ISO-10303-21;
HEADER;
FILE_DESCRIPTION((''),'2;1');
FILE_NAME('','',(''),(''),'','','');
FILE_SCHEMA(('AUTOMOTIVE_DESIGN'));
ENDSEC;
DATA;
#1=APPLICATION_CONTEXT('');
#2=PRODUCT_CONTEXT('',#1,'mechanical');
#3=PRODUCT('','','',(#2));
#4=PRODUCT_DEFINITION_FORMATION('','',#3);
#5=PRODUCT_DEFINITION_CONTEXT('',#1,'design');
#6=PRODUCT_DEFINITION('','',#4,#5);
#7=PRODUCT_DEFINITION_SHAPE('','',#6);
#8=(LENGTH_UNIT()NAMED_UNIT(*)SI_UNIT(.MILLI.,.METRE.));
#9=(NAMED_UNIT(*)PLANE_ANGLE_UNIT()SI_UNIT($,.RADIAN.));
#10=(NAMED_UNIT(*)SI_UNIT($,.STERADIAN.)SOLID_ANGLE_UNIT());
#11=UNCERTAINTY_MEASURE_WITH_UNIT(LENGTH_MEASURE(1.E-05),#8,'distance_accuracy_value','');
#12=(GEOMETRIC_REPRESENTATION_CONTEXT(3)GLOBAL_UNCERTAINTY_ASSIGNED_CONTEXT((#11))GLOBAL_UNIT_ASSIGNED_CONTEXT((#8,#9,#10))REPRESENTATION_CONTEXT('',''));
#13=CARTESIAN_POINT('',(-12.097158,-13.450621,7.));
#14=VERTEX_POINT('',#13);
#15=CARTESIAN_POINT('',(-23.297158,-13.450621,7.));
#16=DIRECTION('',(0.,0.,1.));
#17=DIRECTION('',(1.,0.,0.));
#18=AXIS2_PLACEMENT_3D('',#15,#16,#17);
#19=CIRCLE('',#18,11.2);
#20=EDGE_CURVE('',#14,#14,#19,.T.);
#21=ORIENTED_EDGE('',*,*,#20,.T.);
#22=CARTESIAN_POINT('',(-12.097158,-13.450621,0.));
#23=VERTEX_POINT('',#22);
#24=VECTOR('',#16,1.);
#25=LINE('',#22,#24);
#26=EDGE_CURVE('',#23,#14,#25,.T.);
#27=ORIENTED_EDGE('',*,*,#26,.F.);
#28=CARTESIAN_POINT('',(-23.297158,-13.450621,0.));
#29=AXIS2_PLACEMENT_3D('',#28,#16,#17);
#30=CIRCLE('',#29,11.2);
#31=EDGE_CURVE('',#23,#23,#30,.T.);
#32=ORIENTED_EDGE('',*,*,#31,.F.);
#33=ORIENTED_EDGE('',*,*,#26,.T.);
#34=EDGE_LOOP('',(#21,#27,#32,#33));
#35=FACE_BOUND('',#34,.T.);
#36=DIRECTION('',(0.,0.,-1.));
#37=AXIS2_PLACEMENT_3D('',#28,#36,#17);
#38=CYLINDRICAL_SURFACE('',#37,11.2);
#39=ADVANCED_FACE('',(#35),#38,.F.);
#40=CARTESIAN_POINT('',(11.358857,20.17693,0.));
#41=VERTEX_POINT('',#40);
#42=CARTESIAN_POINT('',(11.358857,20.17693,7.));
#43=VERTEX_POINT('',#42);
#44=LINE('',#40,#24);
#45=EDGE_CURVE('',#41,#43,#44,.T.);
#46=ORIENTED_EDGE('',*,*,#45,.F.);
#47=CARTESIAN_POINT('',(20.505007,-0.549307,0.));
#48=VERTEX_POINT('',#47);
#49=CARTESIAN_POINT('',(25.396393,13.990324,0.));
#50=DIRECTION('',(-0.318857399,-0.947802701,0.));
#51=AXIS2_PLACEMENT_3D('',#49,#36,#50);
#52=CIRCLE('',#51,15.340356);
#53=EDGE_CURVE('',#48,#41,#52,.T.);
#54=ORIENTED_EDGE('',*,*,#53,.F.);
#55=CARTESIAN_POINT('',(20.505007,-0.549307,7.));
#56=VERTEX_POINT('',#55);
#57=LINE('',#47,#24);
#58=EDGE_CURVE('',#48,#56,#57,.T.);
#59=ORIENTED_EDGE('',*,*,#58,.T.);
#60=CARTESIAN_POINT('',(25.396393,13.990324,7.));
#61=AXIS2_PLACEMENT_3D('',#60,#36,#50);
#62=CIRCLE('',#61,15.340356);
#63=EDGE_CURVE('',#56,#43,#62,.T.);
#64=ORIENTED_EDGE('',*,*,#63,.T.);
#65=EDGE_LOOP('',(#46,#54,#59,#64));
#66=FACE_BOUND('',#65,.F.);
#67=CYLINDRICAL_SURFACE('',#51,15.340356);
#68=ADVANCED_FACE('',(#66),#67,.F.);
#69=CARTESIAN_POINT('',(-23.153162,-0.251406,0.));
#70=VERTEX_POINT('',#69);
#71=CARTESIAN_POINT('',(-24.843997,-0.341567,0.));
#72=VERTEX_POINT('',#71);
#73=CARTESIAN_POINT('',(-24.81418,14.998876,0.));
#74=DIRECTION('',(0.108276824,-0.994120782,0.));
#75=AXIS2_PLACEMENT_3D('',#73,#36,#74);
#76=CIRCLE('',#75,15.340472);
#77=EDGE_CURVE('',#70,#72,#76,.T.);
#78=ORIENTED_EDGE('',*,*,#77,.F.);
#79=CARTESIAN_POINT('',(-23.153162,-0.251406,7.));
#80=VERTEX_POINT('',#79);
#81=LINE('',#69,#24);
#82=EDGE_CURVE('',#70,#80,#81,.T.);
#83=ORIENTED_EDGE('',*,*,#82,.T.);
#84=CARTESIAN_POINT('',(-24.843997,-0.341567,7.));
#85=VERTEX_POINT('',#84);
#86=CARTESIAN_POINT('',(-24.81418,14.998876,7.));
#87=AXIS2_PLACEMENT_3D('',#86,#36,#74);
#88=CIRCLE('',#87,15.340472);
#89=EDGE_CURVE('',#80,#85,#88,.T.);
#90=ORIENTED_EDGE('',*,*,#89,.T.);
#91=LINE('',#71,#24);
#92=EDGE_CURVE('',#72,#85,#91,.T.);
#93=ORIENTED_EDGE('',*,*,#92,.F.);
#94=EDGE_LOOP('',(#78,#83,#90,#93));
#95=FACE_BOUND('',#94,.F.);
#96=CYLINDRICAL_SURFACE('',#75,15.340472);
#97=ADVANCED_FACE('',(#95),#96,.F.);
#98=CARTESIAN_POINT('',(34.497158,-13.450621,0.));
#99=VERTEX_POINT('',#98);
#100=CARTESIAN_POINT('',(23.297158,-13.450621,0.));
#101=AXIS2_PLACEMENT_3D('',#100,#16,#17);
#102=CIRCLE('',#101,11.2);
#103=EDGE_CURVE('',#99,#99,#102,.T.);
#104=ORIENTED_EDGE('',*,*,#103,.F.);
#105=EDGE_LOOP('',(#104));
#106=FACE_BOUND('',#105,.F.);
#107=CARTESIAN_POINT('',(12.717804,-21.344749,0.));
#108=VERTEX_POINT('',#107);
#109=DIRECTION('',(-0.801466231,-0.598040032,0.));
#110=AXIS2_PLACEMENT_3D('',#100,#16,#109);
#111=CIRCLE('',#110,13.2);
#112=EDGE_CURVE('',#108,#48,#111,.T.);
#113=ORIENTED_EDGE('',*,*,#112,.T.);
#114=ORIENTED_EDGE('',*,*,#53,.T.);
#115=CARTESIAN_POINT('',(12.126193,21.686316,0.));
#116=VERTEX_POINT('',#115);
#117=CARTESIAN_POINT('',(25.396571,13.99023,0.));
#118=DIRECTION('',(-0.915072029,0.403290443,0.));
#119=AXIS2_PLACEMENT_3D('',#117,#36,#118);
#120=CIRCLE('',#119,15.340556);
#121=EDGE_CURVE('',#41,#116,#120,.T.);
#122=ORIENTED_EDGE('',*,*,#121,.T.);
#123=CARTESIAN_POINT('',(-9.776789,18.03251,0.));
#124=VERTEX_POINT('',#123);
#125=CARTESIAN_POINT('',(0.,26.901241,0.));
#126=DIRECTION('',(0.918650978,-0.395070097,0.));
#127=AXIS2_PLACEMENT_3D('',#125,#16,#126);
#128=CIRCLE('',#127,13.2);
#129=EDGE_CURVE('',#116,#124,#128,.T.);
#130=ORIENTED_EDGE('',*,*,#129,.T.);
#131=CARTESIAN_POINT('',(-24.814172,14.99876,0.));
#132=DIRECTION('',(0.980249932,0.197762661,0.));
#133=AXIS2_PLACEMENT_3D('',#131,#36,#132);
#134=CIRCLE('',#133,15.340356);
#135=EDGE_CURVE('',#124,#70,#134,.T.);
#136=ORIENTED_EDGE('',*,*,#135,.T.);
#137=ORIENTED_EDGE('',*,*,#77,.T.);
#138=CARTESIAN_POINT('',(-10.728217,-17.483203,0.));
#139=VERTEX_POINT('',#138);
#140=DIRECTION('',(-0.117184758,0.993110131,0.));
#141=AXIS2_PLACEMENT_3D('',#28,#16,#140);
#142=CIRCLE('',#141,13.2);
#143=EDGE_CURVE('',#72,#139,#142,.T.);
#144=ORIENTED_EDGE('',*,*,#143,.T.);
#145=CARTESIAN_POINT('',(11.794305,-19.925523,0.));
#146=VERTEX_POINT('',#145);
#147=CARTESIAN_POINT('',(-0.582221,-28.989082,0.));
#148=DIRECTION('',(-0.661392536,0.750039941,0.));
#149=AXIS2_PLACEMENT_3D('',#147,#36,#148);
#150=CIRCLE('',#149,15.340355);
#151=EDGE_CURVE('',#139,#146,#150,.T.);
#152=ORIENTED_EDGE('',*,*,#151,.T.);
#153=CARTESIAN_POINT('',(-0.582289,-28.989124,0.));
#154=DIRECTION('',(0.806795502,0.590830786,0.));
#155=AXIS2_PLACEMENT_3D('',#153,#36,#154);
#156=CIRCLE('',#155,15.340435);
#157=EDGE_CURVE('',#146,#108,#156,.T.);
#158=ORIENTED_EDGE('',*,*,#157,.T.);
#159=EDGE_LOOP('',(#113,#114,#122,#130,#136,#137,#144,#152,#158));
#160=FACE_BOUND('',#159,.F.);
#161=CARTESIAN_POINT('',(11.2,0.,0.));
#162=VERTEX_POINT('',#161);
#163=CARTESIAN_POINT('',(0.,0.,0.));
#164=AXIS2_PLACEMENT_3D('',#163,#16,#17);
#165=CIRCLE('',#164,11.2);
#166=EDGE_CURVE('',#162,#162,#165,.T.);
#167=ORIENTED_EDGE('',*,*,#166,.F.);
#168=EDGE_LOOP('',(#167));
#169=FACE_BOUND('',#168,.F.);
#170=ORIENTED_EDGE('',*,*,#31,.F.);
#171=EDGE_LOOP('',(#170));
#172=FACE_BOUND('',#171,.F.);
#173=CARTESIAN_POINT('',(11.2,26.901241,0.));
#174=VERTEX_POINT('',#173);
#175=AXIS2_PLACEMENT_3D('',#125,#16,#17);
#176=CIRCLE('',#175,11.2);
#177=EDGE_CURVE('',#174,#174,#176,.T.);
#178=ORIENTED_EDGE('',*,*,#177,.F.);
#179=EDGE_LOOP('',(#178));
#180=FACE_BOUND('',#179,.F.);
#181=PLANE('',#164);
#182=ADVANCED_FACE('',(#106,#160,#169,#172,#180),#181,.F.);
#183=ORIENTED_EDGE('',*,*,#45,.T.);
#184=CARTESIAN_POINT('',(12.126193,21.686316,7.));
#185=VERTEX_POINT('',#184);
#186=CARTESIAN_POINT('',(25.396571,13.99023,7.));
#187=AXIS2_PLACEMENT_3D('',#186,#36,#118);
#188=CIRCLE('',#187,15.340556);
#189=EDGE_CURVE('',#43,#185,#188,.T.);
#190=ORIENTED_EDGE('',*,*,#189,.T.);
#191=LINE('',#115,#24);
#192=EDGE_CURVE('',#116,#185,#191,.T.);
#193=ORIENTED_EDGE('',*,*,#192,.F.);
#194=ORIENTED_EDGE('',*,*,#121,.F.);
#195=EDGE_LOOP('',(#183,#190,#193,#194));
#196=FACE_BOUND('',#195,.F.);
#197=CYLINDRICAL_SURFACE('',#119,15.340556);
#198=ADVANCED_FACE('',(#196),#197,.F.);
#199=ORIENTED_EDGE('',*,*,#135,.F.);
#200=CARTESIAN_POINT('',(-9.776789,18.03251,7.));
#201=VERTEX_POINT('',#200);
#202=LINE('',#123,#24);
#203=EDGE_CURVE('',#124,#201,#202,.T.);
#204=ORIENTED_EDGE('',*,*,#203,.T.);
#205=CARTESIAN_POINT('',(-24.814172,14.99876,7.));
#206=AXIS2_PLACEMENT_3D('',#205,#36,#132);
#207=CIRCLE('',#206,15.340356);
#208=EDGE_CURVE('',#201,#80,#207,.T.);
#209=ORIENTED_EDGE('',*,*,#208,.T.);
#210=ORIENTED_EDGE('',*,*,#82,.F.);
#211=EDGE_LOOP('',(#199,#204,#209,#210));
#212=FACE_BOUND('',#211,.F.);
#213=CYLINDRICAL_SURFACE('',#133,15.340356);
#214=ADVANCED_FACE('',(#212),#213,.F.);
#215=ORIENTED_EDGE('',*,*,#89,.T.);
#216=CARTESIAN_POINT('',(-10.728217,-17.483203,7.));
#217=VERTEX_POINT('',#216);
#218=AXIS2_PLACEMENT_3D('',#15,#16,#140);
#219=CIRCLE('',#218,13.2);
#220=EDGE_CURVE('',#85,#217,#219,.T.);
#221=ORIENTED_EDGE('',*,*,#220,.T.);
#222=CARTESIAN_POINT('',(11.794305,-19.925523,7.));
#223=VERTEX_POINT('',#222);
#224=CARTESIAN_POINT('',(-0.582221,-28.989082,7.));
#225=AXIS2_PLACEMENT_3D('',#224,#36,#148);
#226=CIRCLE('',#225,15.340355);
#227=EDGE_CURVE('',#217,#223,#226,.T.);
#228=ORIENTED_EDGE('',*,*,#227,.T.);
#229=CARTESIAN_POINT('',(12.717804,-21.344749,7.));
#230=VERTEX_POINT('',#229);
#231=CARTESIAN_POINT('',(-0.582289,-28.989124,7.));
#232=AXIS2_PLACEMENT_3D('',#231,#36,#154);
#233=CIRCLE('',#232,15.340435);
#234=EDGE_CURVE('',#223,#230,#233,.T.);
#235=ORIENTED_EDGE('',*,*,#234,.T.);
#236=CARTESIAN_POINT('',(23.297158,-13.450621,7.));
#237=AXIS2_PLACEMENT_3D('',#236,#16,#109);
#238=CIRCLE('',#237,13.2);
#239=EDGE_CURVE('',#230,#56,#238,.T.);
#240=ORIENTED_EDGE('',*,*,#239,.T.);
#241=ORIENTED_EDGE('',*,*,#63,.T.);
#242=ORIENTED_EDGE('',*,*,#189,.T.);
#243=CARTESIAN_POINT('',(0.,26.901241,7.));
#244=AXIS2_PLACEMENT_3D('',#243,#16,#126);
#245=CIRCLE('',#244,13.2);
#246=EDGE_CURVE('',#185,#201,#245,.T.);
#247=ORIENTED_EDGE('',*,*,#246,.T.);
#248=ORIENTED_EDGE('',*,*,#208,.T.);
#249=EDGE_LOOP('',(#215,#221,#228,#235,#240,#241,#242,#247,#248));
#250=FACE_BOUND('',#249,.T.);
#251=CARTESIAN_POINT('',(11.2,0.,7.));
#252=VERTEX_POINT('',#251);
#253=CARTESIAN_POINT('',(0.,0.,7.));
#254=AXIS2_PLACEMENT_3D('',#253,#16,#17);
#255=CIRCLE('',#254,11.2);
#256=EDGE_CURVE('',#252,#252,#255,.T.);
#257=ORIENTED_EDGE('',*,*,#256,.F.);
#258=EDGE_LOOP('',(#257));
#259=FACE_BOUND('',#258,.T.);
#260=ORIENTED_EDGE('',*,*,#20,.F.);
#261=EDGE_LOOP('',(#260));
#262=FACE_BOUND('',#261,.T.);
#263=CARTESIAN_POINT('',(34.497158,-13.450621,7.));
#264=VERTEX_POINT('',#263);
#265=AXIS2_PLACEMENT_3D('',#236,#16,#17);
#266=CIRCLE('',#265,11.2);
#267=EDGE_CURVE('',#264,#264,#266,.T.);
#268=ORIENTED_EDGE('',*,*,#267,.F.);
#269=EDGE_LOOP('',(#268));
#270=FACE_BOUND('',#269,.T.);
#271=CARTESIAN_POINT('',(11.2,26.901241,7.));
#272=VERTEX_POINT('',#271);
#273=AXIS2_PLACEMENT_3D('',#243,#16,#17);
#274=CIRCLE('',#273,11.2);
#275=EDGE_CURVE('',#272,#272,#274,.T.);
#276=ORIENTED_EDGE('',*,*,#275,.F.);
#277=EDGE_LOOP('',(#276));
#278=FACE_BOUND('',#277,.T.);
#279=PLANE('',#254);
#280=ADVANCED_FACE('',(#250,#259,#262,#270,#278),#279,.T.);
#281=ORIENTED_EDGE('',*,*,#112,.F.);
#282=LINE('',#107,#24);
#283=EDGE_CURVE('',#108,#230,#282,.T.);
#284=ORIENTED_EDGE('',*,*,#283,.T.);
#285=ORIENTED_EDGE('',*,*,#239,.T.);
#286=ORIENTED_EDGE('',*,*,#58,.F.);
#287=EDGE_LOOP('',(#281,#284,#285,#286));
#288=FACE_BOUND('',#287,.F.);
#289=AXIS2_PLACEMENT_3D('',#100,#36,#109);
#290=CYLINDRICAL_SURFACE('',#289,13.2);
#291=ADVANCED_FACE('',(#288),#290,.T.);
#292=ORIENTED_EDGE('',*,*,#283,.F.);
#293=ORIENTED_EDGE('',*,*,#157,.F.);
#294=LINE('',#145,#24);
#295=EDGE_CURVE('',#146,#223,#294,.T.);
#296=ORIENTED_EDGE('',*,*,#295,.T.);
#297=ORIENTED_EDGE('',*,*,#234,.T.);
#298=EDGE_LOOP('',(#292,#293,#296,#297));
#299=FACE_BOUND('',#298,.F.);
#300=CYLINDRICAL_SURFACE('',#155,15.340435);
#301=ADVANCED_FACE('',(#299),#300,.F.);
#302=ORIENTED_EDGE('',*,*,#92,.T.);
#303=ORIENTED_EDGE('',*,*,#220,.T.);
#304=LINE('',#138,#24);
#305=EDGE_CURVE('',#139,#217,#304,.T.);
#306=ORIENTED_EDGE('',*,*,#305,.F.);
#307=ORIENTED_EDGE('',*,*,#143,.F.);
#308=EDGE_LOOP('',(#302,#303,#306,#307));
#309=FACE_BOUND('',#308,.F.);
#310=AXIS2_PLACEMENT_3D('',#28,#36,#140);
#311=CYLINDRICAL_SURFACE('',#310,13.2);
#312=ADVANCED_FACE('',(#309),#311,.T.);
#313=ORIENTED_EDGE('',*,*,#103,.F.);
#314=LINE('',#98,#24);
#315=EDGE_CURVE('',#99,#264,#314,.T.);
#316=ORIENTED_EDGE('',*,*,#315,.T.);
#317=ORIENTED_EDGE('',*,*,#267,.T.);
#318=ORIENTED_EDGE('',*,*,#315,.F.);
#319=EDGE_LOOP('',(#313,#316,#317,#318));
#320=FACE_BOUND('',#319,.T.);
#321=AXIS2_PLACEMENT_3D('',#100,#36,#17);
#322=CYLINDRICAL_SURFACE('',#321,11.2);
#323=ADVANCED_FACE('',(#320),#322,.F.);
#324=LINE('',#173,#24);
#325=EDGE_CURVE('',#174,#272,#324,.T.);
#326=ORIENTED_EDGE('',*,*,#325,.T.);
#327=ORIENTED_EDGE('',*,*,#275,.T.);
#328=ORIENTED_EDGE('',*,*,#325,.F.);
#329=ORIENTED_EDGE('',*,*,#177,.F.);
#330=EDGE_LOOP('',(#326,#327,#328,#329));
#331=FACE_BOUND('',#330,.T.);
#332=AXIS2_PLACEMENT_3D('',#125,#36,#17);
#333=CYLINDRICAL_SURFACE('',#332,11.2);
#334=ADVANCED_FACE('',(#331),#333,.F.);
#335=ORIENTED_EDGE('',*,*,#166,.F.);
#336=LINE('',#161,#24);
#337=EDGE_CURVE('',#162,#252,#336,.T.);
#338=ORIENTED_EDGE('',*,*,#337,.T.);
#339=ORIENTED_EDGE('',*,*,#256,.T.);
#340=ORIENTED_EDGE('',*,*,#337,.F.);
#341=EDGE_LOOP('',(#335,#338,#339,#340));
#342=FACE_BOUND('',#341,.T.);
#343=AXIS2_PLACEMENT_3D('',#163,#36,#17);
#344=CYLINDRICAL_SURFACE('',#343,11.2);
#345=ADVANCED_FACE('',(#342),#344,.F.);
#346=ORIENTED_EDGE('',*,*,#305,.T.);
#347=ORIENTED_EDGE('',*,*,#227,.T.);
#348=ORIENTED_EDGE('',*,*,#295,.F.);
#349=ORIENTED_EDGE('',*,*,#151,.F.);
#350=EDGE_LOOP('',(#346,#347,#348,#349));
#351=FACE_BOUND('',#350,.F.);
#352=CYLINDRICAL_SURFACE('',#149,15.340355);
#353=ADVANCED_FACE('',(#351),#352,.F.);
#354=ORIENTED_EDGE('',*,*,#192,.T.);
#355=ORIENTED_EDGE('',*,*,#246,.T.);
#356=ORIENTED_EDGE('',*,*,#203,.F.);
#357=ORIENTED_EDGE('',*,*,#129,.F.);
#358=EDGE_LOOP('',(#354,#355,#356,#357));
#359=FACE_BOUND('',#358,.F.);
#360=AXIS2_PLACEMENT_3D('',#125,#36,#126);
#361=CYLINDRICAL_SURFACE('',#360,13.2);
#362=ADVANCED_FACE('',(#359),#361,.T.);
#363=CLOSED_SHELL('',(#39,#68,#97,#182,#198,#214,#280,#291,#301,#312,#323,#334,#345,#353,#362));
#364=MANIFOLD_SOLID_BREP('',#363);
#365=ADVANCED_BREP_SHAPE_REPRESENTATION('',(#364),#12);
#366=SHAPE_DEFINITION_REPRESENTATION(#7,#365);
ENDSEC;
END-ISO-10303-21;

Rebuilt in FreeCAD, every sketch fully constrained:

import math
import FreeCAD as App
import Part
import Sketcher

V = App.Vector

doc = App.newDocument("Part")
body = doc.addObject("PartDesign::Body", "Body")

# Sketch on XY plane
sketch1 = body.newObject("Sketcher::SketchObject", "Sketch")
sketch1.AttachmentSupport = (doc.getObject("XY_Plane"), [""])
sketch1.MapMode = "FlatFace"
sketch1.addGeometry(Part.ArcOfCircle(Part.Circle(V(25.396393, 13.990324, 0), V(0, 0, 1), 15.340356), math.radians(156.216009), math.radians(251.406161)), False)
sketch1.addGeometry(Part.ArcOfCircle(Part.Circle(V(25.396571, 13.99023, 0), V(0, 0, 1), 15.340556), math.radians(149.888637), math.radians(156.215958)), False)
sketch1.addGeometry(Part.ArcOfCircle(Part.Circle(V(0, 26.901241, 0), V(0, 0, 1), 13.2), math.radians(-23.270346), math.radians(222.211834)), False)
sketch1.addGeometry(Part.ArcOfCircle(Part.Circle(V(-24.814172, 14.99876, 0), V(0, 0, 1), 15.340356), math.radians(-83.783989), math.radians(11.406156)), False)
sketch1.addGeometry(Part.ArcOfCircle(Part.Circle(V(-24.81418, 14.998876, 0), V(0, 0, 1), 15.340472), math.radians(-90.111366), math.radians(-83.784008)), False)
sketch1.addGeometry(Part.ArcOfCircle(Part.Circle(V(-23.297158, -13.450621, 0), V(0, 0, 1), 13.2), math.radians(96.729655), math.radians(342.211834)), False)
sketch1.addGeometry(Part.ArcOfCircle(Part.Circle(V(-0.582221, -28.989082, 0), V(0, 0, 1), 15.340355), math.radians(36.216008), math.radians(131.406162)), False)
sketch1.addGeometry(Part.ArcOfCircle(Part.Circle(V(-0.582289, -28.989124, 0), V(0, 0, 1), 15.340435), math.radians(29.888611), math.radians(36.215985)), False)
sketch1.addGeometry(Part.ArcOfCircle(Part.Circle(V(23.297158, -13.450621, 0), V(0, 0, 1), 13.2), math.radians(-143.270346), math.radians(102.211831)), False)
sketch1.addGeometry(Part.Circle(V(-23.297158, -13.450621, 0), V(0, 0, 1), 11.2), False)
sketch1.addGeometry(Part.Circle(V(23.297158, -13.450621, 0), V(0, 0, 1), 11.2), False)
sketch1.addGeometry(Part.Circle(V(0, 0, 0), V(0, 0, 1), 11.2), False)
sketch1.addGeometry(Part.Circle(V(0, 26.901241, 0), V(0, 0, 1), 11.2), False)
sketch1.addConstraint(Sketcher.Constraint("Coincident", 0, 1, 1, 2))
sketch1.addConstraint(Sketcher.Constraint("Coincident", 1, 1, 2, 1))
sketch1.addConstraint(Sketcher.Constraint("Coincident", 2, 2, 3, 2))
sketch1.addConstraint(Sketcher.Constraint("Coincident", 3, 1, 4, 2))
sketch1.addConstraint(Sketcher.Constraint("Coincident", 4, 1, 5, 1))
sketch1.addConstraint(Sketcher.Constraint("Coincident", 5, 2, 6, 2))
sketch1.addConstraint(Sketcher.Constraint("Coincident", 6, 1, 7, 2))
sketch1.addConstraint(Sketcher.Constraint("Coincident", 7, 1, 8, 1))
sketch1.addConstraint(Sketcher.Constraint("Coincident", 8, 2, 0, 2))
sketch1.addConstraint(Sketcher.Constraint("Coincident", 11, 3, -1, 1))
sketch1.addConstraint(Sketcher.Constraint("Coincident", 9, 3, 5, 3))
sketch1.addConstraint(Sketcher.Constraint("Coincident", 10, 3, 8, 3))
sketch1.addConstraint(Sketcher.Constraint("Coincident", 12, 3, 2, 3))
sketch1.addConstraint(Sketcher.Constraint("PointOnObject", 2, 3, -2))
sketch1.addConstraint(Sketcher.Constraint("Diameter", 9, 22.4))
sketch1.addConstraint(Sketcher.Constraint("Diameter", 10, 22.4))
sketch1.addConstraint(Sketcher.Constraint("Diameter", 11, 22.4))
sketch1.addConstraint(Sketcher.Constraint("Diameter", 12, 22.4))
sketch1.addConstraint(Sketcher.Constraint("Radius", 2, 13.2))
sketch1.addConstraint(Sketcher.Constraint("Radius", 5, 13.2))
sketch1.addConstraint(Sketcher.Constraint("Radius", 8, 13.2))
sketch1.addConstraint(Sketcher.Constraint("Radius", 0, 15.340356))
sketch1.addConstraint(Sketcher.Constraint("Radius", 1, 15.340556))
sketch1.addConstraint(Sketcher.Constraint("Radius", 3, 15.340356))
sketch1.addConstraint(Sketcher.Constraint("Radius", 4, 15.340472))
sketch1.addConstraint(Sketcher.Constraint("Radius", 6, 15.340355))
sketch1.addConstraint(Sketcher.Constraint("Radius", 7, 15.340435))
sketch1.addConstraint(Sketcher.Constraint("DistanceY", 1, 3, 0, 1, 6.1867))
sketch1.addConstraint(Sketcher.Constraint("DistanceX", 1, 1, 0, 3, 13.2702))
sketch1.addConstraint(Sketcher.Constraint("DistanceY", 6, 1, 10, 3, 6.474902))
sketch1.addConstraint(Sketcher.Constraint("DistanceY", 7, 3, 6, 1, 9.063601))
sketch1.addConstraint(Sketcher.Constraint("DistanceX", 6, 1, 7, 1, 0.923499))
sketch1.addConstraint(Sketcher.Constraint("DistanceX", -1, 1, 1, 3, 25.396571))
sketch1.addConstraint(Sketcher.Constraint("DistanceY", -1, 1, 1, 3, 13.99023))
sketch1.addConstraint(Sketcher.Constraint("DistanceY", -1, 1, 2, 3, 26.901241))
sketch1.addConstraint(Sketcher.Constraint("DistanceY", -1, 1, 3, 3, 14.99876))
sketch1.addConstraint(Sketcher.Constraint("DistanceX", 4, 3, -1, 1, 24.81418))
sketch1.addConstraint(Sketcher.Constraint("DistanceX", 5, 3, -1, 1, 23.297158))
sketch1.addConstraint(Sketcher.Constraint("DistanceY", 5, 3, -1, 1, 13.450621))
sketch1.addConstraint(Sketcher.Constraint("DistanceX", 6, 3, -1, 1, 0.582221))
sketch1.addConstraint(Sketcher.Constraint("DistanceY", 6, 3, -1, 1, 28.989082))
sketch1.addConstraint(Sketcher.Constraint("DistanceX", 7, 3, -1, 1, 0.582289))
sketch1.addConstraint(Sketcher.Constraint("DistanceX", 2, 2, -1, 1, 9.776789))
sketch1.addConstraint(Sketcher.Constraint("DistanceX", 3, 1, -1, 1, 23.153162))
pad1 = body.newObject("PartDesign::Pad", "Pad")
pad1.Profile = sketch1
pad1.Length = 7

doc.recompute()
